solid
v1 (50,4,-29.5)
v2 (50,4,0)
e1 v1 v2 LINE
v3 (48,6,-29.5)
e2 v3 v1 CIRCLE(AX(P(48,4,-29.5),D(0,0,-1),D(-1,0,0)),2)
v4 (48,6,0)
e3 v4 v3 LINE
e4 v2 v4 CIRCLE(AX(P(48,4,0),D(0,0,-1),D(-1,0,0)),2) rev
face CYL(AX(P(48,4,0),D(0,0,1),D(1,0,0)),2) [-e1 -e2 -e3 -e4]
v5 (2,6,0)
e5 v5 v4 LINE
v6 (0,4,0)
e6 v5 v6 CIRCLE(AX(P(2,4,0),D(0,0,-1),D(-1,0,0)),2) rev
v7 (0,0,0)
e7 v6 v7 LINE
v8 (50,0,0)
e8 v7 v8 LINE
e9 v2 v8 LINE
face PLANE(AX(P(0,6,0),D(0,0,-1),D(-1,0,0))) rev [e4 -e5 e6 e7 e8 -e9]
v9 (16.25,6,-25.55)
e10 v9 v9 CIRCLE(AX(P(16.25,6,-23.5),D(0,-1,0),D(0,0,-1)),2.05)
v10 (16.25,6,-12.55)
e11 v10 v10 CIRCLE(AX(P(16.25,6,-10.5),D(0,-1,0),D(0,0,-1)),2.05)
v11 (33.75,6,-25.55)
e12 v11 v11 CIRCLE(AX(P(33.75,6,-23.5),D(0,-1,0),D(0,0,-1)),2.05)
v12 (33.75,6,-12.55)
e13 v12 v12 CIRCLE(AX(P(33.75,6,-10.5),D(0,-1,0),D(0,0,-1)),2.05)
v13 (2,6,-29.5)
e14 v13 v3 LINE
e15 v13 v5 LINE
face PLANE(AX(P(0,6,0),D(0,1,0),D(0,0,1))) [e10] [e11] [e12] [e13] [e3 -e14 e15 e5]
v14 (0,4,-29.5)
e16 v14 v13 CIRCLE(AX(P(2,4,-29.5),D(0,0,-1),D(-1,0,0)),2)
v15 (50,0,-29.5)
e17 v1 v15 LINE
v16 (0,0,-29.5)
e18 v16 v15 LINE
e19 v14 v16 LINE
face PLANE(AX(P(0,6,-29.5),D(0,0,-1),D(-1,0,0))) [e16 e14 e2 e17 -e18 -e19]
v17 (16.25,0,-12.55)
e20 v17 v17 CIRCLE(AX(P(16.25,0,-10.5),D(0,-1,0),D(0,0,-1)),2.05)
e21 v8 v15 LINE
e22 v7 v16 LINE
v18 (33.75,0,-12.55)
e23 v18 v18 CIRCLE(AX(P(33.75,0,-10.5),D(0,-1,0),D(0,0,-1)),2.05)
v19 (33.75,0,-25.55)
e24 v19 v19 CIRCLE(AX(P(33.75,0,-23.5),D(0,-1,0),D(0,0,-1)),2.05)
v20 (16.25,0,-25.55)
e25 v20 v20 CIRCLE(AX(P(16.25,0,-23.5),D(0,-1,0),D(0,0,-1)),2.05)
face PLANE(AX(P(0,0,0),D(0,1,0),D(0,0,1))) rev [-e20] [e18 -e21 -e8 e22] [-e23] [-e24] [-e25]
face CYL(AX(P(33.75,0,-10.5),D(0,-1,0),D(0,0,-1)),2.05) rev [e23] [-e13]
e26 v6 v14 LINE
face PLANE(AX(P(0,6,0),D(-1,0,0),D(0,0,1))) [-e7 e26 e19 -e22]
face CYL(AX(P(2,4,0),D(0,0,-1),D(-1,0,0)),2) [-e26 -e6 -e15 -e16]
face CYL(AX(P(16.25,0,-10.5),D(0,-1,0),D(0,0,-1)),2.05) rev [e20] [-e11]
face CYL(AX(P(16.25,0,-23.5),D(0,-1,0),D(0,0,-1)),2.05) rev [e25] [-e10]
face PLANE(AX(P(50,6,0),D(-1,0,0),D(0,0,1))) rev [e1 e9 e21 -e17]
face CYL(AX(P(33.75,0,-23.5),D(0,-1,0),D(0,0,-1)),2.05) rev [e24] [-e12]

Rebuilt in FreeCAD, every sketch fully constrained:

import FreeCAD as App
import Part
import Sketcher

V = App.Vector
Q = App.Units.Quantity


def edges_at(feature, points):
    """Names of the edges that pass closest to the given points."""
    edges = feature.Shape.Edges
    near = lambda p: min(range(len(edges)), key=lambda i: edges[i].distToShape(Part.Vertex(*p))[0])
    return sorted({f"Edge{near(p) + 1}" for p in points})

doc = App.newDocument("Part")
body = doc.addObject("PartDesign::Body", "Body")

# Sketch on XZ plane
sketch1 = body.newObject("Sketcher::SketchObject", "Sketch")
sketch1.AttachmentSupport = (doc.getObject("XZ_Plane"), [""])
sketch1.MapMode = "FlatFace"
sketch1.addGeometry([
    Part.LineSegment(V(0, 0, 0), V(50, 0, 0)),
    Part.LineSegment(V(50, 0, 0), V(50, -30, 0)),
    Part.LineSegment(V(50, -30, 0), V(0, -30, 0)),
    Part.LineSegment(V(0, -30, 0), V(0, 0, 0)),
], False)
sketch1.addConstraint([
    Sketcher.Constraint("Coincident", 0, 2, 1, 1),
    Sketcher.Constraint("Coincident", 1, 2, 2, 1),
    Sketcher.Constraint("Coincident", 2, 2, 3, 1),
    Sketcher.Constraint("Coincident", 3, 2, 0, 1),
    Sketcher.Constraint("Horizontal", 0),
    Sketcher.Constraint("Vertical", 1),
    Sketcher.Constraint("Horizontal", 2),
    Sketcher.Constraint("Vertical", 3),
    Sketcher.Constraint("Coincident", 3, 2, -1, 1),
    Sketcher.Constraint("DistanceX", 0, 1, 0, 2, Q("50 mm")),
    Sketcher.Constraint("DistanceY", 1, 2, 1, 1, Q("29.5 mm")),
])
pad1 = body.newObject("PartDesign::Pad", "Pad")
pad1.Profile = sketch1
pad1.Length = 6
pad1.Reversed = True
doc.recompute()

fillet = body.newObject("PartDesign::Fillet", "Fillet")
fillet.Base = (pad1, edges_at(pad1, [(0, 6, -14.75)]))
fillet.Radius = 2
doc.recompute()

fillet2 = body.newObject("PartDesign::Fillet", "Fillet001")
fillet2.Base = (fillet, edges_at(fillet, [(50, 6, -14.75)]))
fillet2.Radius = 2

# Sketch on XZ plane
sketch2 = body.newObject("Sketcher::SketchObject", "Sketch001")
sketch2.AttachmentSupport = (doc.getObject("XZ_Plane"), [""])
sketch2.MapMode = "FlatFace"
sketch2.addGeometry([
    Part.Circle(V(16.2, -23.5, 0), V(0, 0, 1), 2),
    Part.Circle(V(33.8, -23.5, 0), V(0, 0, 1), 2),
    Part.Circle(V(33.8, -10.5, 0), V(0, 0, 1), 2),
    Part.Circle(V(16.2, -10.5, 0), V(0, 0, 1), 2),
], False)
sketch2.addConstraint([
    Sketcher.Constraint("Equal", 0, 1),
    Sketcher.Constraint("Equal", 1, 2),
    Sketcher.Constraint("Equal", 2, 3),
    Sketcher.Constraint("Horizontal", 0, 3, 1, 3),
    Sketcher.Constraint("Horizontal", 2, 3, 3, 3),
    Sketcher.Constraint("Vertical", 1, 3, 2, 3),
    Sketcher.Constraint("Vertical", 0, 3, 3, 3),
    Sketcher.Constraint("Diameter", 0, Q("4.1 mm")),
    Sketcher.Constraint("DistanceY", 1, 3, 2, 3, Q("13 mm")),
    Sketcher.Constraint("DistanceY", 0, 3, -1, 1, Q("23.5 mm")),
    Sketcher.Constraint("DistanceX", 0, 3, 1, 3, Q("17.5 mm")),
    Sketcher.Constraint("DistanceX", -1, 1, 0, 3, Q("16.25 mm")),
])
doc.recompute()
hole = body.newObject("PartDesign::Hole", "Hole")
hole.Profile = sketch2
hole.ThreadType = "None"
hole.Diameter = 4.1
hole.DepthType = "ThroughAll"

doc.recompute()
